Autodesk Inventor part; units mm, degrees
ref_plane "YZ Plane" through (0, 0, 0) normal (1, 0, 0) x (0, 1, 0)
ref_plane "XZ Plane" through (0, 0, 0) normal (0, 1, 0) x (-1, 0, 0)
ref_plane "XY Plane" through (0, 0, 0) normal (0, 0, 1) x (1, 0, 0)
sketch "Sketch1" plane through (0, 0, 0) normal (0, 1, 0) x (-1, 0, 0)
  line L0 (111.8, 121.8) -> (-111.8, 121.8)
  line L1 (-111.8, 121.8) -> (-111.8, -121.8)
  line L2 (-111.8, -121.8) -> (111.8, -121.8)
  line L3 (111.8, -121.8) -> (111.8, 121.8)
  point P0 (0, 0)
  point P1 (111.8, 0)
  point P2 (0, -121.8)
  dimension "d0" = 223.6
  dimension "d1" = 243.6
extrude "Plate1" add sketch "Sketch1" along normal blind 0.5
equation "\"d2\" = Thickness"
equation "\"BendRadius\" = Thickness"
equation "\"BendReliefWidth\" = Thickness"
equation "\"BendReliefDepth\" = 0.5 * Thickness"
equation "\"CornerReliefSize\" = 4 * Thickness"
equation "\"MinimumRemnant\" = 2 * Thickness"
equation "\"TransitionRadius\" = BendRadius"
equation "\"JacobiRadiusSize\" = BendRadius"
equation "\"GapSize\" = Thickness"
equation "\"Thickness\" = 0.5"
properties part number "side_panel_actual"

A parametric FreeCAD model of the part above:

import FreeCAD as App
import Part
import Sketcher
from FreeCAD import Vector
Q = App.Units.Quantity


def add_polygon(sketch, points):
    """Adds a closed chain of lines whose ends are joined by coincident constraints."""
    first, n = sketch.GeometryCount, len(points)
    for a, b in zip(points, points[1:] + points[:1]):
        sketch.addGeometry(Part.LineSegment(App.Vector(*a, 0), App.Vector(*b, 0)), False)
    for i in range(n):
        sketch.addConstraint(Sketcher.Constraint("Coincident", first + i, 2, first + (i + 1) % n, 1))

doc = App.newDocument("Part")
body = doc.addObject("PartDesign::Body", "Body")

sketch1 = body.newObject("Sketcher::SketchObject", "Sketch")
sketch1.AttachmentSupport = (doc.getObject("XZ_Plane"), [""])
sketch1.MapMode = "FlatFace"
add_polygon(sketch1, [(-112, -122), (-112, 122), (112, 122), (112, -122)])
sketch1.addConstraint(Sketcher.Constraint("Vertical", 0))
sketch1.addConstraint(Sketcher.Constraint("Horizontal", 1))
sketch1.addConstraint(Sketcher.Constraint("Vertical", 2))
sketch1.addConstraint(Sketcher.Constraint("Horizontal", 3))
sketch1.addConstraint(Sketcher.Constraint("Symmetric", 0, 2, 2, 2, -1, 1))
sketch1.addConstraint(Sketcher.Constraint("DistanceX", 1, 1, 1, 2, Q("223.6 mm")))
sketch1.addConstraint(Sketcher.Constraint("DistanceY", 0, 1, 0, 2, Q("243.6 mm")))
pad1 = body.newObject("PartDesign::Pad", "Pad")
pad1.Profile = sketch1
pad1.Length = 0.5
pad1.Reversed = True

doc.recompute()
